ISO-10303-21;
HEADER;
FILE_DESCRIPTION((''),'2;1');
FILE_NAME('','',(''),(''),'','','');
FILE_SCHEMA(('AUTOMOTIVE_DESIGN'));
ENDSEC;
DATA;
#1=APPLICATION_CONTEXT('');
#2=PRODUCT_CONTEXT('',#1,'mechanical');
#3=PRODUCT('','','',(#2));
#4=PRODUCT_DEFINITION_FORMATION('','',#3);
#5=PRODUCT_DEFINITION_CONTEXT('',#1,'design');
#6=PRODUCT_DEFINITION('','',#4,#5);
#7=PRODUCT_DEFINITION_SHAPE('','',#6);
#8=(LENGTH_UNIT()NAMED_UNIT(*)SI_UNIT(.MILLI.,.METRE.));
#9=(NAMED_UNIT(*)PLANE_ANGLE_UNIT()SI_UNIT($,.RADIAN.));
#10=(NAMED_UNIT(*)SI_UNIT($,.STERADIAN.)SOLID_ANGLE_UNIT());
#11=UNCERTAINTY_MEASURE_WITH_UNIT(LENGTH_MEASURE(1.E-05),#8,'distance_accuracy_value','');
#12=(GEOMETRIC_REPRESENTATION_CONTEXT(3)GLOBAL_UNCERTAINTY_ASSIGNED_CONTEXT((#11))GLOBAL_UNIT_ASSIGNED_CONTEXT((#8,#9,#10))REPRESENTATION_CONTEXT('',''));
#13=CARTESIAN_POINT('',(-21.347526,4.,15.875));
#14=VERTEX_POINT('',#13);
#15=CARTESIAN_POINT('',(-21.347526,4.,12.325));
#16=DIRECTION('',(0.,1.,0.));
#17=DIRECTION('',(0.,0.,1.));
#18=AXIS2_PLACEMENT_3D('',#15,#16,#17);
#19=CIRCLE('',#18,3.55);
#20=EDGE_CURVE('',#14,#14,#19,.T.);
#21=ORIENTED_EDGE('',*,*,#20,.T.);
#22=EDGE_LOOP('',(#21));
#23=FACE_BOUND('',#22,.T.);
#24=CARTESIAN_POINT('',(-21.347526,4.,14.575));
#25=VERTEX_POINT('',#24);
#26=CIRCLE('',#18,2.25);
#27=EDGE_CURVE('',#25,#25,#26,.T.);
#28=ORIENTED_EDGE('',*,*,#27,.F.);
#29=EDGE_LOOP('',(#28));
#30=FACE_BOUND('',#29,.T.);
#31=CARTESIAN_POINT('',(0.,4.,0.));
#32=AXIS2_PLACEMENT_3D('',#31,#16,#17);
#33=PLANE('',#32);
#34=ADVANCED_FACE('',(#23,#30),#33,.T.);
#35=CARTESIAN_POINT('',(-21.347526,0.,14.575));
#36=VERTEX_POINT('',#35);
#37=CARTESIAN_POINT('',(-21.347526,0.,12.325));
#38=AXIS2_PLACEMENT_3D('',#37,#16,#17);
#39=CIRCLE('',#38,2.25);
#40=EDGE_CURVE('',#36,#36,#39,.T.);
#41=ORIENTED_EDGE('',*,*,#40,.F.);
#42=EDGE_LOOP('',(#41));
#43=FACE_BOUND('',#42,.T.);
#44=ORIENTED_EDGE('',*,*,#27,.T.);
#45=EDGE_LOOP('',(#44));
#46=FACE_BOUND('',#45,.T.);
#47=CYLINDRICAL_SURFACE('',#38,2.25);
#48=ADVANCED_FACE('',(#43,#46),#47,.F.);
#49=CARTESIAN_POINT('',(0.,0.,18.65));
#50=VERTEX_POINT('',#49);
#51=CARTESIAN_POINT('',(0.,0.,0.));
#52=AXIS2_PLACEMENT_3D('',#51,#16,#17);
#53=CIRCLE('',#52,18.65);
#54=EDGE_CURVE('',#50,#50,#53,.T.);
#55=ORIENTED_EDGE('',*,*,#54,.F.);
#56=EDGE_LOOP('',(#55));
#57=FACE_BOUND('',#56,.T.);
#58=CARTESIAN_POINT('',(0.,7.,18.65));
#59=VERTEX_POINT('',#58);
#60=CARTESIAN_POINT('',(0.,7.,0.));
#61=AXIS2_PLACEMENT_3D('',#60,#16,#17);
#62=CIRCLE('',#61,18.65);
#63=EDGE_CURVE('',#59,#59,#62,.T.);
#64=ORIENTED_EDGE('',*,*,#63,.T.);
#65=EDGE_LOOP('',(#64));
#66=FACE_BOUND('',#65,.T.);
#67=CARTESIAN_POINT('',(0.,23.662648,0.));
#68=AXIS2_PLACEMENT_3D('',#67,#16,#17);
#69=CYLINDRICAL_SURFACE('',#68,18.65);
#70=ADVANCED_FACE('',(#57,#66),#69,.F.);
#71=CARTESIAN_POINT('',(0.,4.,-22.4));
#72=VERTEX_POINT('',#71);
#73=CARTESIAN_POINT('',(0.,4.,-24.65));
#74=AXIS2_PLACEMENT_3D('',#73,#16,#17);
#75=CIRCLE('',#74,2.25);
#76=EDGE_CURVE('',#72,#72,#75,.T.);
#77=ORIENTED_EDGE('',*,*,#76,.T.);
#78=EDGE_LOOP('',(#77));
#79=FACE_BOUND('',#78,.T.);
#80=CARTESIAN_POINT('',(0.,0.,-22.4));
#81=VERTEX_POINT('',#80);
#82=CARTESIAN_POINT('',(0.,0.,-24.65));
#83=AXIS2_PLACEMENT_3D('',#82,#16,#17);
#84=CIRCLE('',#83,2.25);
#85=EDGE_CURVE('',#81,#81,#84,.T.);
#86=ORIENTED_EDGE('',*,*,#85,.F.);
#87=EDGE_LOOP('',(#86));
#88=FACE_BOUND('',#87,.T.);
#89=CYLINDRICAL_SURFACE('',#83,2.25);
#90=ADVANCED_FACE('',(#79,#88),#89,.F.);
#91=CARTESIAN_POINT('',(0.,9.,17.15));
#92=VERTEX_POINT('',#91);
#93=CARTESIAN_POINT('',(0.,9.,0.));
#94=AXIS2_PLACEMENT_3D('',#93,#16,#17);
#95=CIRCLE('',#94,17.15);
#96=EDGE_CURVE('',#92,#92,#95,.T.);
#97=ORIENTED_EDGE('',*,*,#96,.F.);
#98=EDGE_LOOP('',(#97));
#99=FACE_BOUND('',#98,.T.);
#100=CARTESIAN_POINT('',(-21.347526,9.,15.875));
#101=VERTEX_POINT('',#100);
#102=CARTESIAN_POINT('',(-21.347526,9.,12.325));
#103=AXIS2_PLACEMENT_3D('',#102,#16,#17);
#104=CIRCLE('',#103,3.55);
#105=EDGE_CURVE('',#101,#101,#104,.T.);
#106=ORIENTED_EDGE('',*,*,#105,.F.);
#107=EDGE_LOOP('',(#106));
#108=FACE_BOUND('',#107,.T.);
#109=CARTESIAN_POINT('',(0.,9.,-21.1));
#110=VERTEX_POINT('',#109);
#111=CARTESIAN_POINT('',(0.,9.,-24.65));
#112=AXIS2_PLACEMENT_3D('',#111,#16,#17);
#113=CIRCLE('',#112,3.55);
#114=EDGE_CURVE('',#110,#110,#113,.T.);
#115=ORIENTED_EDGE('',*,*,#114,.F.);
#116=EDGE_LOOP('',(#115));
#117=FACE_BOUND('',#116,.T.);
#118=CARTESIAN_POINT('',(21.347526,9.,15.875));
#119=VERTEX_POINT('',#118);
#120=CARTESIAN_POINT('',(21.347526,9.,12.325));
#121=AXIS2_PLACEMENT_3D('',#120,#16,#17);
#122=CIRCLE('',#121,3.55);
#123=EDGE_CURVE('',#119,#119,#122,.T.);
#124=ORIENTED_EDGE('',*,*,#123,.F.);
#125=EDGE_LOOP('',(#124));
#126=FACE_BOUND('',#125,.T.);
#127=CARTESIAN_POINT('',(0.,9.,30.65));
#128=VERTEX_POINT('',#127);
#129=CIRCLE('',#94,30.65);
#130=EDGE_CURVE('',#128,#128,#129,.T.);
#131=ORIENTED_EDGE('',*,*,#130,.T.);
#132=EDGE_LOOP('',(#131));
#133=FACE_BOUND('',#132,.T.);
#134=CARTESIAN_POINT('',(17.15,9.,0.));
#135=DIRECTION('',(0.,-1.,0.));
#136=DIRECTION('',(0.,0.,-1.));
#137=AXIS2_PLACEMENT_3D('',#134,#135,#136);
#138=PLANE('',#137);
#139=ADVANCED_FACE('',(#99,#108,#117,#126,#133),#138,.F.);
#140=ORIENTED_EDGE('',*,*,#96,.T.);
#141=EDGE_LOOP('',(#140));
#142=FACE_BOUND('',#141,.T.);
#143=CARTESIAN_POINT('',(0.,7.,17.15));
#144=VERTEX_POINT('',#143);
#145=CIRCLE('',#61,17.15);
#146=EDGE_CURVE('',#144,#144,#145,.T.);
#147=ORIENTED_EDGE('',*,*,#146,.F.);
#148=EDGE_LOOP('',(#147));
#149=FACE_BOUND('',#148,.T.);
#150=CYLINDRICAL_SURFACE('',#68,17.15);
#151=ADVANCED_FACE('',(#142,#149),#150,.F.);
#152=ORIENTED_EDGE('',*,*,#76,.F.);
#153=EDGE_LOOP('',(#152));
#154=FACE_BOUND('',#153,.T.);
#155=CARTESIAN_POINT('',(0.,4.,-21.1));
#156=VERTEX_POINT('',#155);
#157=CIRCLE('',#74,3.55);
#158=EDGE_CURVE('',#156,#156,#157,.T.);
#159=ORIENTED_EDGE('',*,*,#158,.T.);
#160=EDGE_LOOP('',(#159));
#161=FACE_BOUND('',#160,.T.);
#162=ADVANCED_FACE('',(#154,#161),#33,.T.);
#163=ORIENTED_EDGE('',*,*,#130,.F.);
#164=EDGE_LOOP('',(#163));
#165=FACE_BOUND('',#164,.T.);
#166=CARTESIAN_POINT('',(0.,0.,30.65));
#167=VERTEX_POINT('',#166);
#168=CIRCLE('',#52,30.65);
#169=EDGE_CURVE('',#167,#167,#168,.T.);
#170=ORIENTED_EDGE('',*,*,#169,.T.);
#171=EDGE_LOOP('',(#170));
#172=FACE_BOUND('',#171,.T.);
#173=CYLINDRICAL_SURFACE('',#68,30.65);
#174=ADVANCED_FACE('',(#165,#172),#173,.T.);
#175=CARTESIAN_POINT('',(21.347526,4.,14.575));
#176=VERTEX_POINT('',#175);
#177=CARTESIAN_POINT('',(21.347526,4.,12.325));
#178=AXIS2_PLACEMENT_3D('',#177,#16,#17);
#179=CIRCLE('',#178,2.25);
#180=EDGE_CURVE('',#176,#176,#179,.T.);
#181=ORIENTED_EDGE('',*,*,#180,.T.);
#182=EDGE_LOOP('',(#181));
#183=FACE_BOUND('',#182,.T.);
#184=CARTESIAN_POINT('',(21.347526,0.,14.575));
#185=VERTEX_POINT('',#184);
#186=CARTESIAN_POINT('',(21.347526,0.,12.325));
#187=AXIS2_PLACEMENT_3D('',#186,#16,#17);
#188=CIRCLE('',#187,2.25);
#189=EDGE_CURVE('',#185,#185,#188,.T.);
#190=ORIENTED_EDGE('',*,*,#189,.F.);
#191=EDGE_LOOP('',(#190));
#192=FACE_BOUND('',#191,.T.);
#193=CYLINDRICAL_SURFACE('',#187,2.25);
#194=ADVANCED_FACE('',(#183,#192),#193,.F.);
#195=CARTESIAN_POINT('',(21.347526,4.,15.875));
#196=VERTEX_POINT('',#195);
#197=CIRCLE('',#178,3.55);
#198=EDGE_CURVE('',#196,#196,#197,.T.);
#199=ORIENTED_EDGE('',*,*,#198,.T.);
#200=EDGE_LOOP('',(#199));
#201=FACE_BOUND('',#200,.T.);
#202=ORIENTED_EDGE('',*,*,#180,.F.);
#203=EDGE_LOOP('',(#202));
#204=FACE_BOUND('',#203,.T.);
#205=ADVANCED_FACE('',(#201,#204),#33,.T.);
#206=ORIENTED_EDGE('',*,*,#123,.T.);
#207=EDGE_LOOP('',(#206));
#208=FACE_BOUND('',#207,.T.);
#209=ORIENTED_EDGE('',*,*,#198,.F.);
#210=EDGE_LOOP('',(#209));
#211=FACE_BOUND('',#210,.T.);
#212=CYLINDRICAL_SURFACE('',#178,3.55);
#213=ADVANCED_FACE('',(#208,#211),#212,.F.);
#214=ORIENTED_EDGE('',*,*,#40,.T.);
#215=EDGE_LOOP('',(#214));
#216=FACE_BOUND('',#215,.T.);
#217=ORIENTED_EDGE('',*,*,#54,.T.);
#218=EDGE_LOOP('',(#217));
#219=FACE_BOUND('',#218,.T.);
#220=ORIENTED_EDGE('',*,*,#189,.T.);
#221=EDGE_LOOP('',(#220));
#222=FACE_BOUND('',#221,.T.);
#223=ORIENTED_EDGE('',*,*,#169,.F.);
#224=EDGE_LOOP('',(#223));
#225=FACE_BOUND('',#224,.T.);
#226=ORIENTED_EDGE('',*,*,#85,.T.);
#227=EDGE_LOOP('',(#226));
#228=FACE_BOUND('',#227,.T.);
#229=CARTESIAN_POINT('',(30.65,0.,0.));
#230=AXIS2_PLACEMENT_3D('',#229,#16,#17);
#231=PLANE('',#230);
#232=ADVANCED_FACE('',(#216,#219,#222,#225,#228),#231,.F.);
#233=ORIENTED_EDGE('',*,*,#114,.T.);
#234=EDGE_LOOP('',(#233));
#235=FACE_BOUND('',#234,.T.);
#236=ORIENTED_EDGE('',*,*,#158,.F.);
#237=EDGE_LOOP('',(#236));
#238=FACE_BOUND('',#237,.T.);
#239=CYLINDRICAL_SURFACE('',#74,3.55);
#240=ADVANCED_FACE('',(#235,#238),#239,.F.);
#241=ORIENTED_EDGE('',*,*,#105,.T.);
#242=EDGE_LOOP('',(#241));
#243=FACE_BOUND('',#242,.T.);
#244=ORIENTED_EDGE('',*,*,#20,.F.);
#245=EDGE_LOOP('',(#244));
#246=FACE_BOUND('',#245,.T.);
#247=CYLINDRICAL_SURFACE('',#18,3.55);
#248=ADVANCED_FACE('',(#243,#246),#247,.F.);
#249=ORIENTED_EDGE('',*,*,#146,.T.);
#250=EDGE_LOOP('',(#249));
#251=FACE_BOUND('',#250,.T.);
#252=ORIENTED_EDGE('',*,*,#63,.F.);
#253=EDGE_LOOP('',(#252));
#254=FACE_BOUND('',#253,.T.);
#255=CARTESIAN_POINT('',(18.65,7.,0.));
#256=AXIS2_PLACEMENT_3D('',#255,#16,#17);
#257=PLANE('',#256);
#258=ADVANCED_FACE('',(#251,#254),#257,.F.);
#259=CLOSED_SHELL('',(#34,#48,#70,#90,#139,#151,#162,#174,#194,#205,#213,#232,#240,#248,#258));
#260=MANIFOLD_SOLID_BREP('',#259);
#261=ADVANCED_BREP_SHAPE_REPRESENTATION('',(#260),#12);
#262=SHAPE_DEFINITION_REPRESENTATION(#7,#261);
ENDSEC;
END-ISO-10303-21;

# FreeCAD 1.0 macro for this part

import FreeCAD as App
import Part
import Sketcher
from FreeCAD import Vector
Q = App.Units.Quantity


def add_polygon(sketch, points):
    """Adds a closed chain of lines whose ends are joined by coincident constraints."""
    first, n = sketch.GeometryCount, len(points)
    for a, b in zip(points, points[1:] + points[:1]):
        sketch.addGeometry(Part.LineSegment(App.Vector(*a, 0), App.Vector(*b, 0)), False)
    for i in range(n):
        sketch.addConstraint(Sketcher.Constraint("Coincident", first + i, 2, first + (i + 1) % n, 1))

doc = App.newDocument("Part")
body = doc.addObject("PartDesign::Body", "Body")

# Sketch on XY plane
sketch1 = body.newObject("Sketcher::SketchObject", "Sketch")
sketch1.AttachmentSupport = (doc.getObject("XY_Plane"), [""])
sketch1.MapMode = "FlatFace"
add_polygon(sketch1, [(30.65, 9), (17.15, 9), (17.15, 7), (18.65, 7), (18.65, 0), (30.65, 0)])  # lines 0-5
sketch1.addConstraint(Sketcher.Constraint("Horizontal", 0))
sketch1.addConstraint(Sketcher.Constraint("Vertical", 1))
sketch1.addConstraint(Sketcher.Constraint("Horizontal", 2))
sketch1.addConstraint(Sketcher.Constraint("Vertical", 3))
sketch1.addConstraint(Sketcher.Constraint("Horizontal", 4))
sketch1.addConstraint(Sketcher.Constraint("Vertical", 5))
sketch1.addConstraint(Sketcher.Constraint("PointOnObject", 3, 2, -1))
sketch1.addConstraint(Sketcher.Constraint("DistanceX", 4, 1, 4, 2, Q("12 mm")))
sketch1.addConstraint(Sketcher.Constraint("DistanceY", 1, 2, 1, 1, Q("2 mm")))
sketch1.addConstraint(Sketcher.Constraint("DistanceY", 3, 2, 3, 1, Q("7 mm")))
sketch1.addConstraint(Sketcher.Constraint("DistanceX", 0, 2, 0, 1, Q("13.5 mm")))
sketch1.addConstraint(Sketcher.Constraint("DistanceX", -1, 1, 0, 2, Q("17.15 mm")))
revolution = body.newObject("PartDesign::Revolution", "Revolution")
revolution.Profile = sketch1
revolution.ReferenceAxis = (sketch1, ["V_Axis"])
revolution.Angle = 360

# Sketch on XZ plane
sketch2 = body.newObject("Sketcher::SketchObject", "Sketch001")
sketch2.AttachmentSupport = (doc.getObject("XZ_Plane"), [""])
sketch2.MapMode = "FlatFace"
sketch2.AttachmentOffset = App.Placement(Vector(0, 0, -9), App.Rotation())
sketch2.addGeometry(Part.Circle(Vector(0, -24.65, 0), Vector(0, 0, 1), 2.25), False)
sketch2.addGeometry(Part.Circle(Vector(21.347526, 12.325, 0), Vector(0, 0, 1), 2.25), False)
sketch2.addGeometry(Part.Circle(Vector(-21.347526, 12.325, 0), Vector(0, 0, 1), 2.25), False)
sketch2.addConstraint(Sketcher.Constraint("Equal", 0, 1))
sketch2.addConstraint(Sketcher.Constraint("Equal", 1, 2))
sketch2.addConstraint(Sketcher.Constraint("Symmetric", 1, 3, 2, 3, -2))
sketch2.addConstraint(Sketcher.Constraint("PointOnObject", 0, 3, -2))
sketch2.addConstraint(Sketcher.Constraint("Diameter", 0, Q("4.5 mm")))
sketch2.addConstraint(Sketcher.Constraint("DistanceY", 0, 3, -1, 1, Q("24.65 mm")))
sketch2.addConstraint(Sketcher.Constraint("DistanceY", -1, 1, 1, 3, Q("12.325 mm")))
sketch2.addConstraint(Sketcher.Constraint("DistanceX", -1, 1, 1, 3, Q("21.347526 mm")))
pocket1 = body.newObject("PartDesign::Pocket", "Pocket")
pocket1.Profile = sketch2
pocket1.Type = "ThroughAll"
pocket1.Reversed = True

# Sketch on XZ plane
sketch3 = body.newObject("Sketcher::SketchObject", "Sketch002")
sketch3.AttachmentSupport = (doc.getObject("XZ_Plane"), [""])
sketch3.MapMode = "FlatFace"
sketch3.AttachmentOffset = App.Placement(Vector(0, 0, -9), App.Rotation())
sketch3.addGeometry(Part.Circle(Vector(0, -24.65, 0), Vector(0, 0, 1), 3.55), False)
sketch3.addGeometry(Part.Circle(Vector(21.347526, 12.325, 0), Vector(0, 0, 1), 3.55), False)
sketch3.addGeometry(Part.Circle(Vector(-21.347526, 12.325, 0), Vector(0, 0, 1), 3.55), False)
sketch3.addConstraint(Sketcher.Constraint("Equal", 0, 1))
sketch3.addConstraint(Sketcher.Constraint("Equal", 1, 2))
sketch3.addConstraint(Sketcher.Constraint("Symmetric", 1, 3, 2, 3, -2))
sketch3.addConstraint(Sketcher.Constraint("PointOnObject", 0, 3, -2))
sketch3.addConstraint(Sketcher.Constraint("Diameter", 0, Q("7.1 mm")))
sketch3.addConstraint(Sketcher.Constraint("DistanceY", 0, 3, -1, 1, Q("24.65 mm")))
sketch3.addConstraint(Sketcher.Constraint("DistanceY", -1, 1, 1, 3, Q("12.325 mm")))
sketch3.addConstraint(Sketcher.Constraint("DistanceX", -1, 1, 1, 3, Q("21.347526 mm")))
pocket2 = body.newObject("PartDesign::Pocket", "Pocket001")
pocket2.Profile = sketch3
pocket2.Length = 5
pocket2.Reversed = True

doc.recompute()
